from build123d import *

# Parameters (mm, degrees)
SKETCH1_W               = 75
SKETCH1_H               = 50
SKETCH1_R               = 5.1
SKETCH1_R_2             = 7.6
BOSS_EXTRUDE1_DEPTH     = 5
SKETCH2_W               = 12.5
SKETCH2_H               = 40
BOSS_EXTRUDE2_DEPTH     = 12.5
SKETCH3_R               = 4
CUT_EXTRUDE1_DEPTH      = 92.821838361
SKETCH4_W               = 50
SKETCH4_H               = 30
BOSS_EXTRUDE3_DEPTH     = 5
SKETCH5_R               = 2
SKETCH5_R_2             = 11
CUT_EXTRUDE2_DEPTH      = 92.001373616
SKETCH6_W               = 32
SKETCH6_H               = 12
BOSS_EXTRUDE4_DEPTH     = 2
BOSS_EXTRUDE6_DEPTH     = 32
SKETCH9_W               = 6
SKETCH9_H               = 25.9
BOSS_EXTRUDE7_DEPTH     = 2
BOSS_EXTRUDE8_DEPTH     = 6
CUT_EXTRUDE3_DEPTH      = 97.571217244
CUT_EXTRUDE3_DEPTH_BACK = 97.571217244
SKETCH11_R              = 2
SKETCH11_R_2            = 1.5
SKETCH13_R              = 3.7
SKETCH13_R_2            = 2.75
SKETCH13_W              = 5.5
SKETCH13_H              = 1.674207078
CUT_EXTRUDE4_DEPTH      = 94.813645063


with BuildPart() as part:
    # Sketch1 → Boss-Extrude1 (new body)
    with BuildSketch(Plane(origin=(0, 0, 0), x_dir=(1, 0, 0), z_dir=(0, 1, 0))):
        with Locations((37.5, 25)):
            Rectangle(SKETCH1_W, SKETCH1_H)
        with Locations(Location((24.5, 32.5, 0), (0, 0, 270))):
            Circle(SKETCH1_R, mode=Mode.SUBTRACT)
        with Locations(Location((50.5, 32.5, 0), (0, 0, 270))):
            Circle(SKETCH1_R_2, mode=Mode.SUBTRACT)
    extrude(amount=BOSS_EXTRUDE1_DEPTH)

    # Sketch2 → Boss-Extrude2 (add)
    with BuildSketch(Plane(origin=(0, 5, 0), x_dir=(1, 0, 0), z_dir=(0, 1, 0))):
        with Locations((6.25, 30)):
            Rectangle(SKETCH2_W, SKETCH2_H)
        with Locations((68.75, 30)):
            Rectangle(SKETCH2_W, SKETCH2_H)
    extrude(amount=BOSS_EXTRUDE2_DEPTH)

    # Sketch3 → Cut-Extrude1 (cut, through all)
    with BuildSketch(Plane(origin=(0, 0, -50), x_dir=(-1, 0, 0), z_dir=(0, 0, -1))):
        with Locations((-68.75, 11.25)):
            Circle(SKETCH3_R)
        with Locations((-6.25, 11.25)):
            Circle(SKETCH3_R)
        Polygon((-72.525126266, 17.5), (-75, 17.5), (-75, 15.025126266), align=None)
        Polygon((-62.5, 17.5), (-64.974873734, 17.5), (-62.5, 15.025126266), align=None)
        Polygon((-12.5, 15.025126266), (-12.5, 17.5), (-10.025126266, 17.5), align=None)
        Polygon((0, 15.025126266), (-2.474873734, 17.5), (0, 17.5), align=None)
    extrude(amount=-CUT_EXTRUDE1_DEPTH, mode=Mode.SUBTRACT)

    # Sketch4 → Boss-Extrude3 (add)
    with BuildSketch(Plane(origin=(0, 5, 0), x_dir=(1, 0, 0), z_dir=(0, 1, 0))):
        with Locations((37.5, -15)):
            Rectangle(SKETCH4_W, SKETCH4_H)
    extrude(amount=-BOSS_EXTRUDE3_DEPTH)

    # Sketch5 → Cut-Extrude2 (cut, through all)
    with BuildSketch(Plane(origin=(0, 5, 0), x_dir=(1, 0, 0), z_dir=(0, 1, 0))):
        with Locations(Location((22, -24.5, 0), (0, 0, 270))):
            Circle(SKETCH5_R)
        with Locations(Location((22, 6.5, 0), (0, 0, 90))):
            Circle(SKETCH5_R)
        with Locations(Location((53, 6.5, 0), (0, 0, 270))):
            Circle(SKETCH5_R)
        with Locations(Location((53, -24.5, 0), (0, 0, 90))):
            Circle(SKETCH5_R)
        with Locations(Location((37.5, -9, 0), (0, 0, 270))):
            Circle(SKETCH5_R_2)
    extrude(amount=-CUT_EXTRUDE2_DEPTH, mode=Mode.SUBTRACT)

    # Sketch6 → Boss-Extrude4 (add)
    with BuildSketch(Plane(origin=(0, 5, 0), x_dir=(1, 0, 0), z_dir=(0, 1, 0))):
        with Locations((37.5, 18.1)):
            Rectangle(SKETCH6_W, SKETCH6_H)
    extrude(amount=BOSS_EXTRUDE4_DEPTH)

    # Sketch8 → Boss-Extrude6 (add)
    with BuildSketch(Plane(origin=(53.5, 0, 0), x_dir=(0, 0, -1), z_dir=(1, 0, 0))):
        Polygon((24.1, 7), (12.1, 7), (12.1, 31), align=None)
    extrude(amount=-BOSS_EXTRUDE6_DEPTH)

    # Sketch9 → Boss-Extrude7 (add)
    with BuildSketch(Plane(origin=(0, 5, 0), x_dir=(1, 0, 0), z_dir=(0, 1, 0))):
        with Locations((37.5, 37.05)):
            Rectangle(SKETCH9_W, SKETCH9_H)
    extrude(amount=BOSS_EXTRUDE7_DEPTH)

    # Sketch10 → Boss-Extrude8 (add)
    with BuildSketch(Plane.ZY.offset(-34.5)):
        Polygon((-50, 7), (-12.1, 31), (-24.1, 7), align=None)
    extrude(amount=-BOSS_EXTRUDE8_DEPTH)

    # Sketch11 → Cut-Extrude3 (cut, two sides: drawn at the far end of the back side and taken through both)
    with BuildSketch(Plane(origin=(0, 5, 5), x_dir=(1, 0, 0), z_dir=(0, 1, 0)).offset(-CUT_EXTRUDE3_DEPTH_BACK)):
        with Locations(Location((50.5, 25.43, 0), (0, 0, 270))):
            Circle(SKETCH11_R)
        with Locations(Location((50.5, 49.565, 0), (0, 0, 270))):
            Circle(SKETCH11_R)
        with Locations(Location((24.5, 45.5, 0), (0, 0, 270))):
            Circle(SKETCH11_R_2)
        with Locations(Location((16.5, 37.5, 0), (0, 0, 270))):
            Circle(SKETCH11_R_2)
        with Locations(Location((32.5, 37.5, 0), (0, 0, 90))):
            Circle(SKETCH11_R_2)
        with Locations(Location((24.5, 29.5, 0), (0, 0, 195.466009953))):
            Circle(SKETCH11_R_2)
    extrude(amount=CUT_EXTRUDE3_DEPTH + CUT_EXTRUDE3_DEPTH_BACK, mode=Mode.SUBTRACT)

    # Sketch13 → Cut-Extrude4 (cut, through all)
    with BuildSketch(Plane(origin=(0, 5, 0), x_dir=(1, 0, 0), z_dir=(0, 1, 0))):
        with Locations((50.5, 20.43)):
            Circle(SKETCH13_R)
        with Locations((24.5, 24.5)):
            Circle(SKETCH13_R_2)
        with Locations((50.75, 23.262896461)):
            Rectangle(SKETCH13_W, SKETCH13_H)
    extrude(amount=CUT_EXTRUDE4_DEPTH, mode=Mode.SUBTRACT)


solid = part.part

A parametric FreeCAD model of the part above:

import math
import FreeCAD as App
import Part
import Sketcher
from FreeCAD import Vector
Q = App.Units.Quantity

doc = App.newDocument("Part")
body = doc.addObject("PartDesign::Body", "Body")

# Sketch on XZ plane
sketch1 = doc.addObject("Sketcher::SketchObject", "Sketch")
body.addObject(sketch1)
sketch1.AttachmentSupport = (doc.XZ_Plane, [""])
sketch1.MapMode = "FlatFace"
sketch1.addGeometry([
    Part.LineSegment(Vector(0, -50, 0), Vector(0, 0, 0)),  # 0
    Part.LineSegment(Vector(0, 0, 0), Vector(75, 0, 0)),  # 1
    Part.LineSegment(Vector(75, 0, 0), Vector(75, -50, 0)),  # 2
    Part.LineSegment(Vector(75, -50, 0), Vector(0, -50, 0)),  # 3
    Part.Circle(Vector(24.5, -32.5, 0), Vector(0, 0, 1), 5.1),  # 4
    Part.Circle(Vector(50.5, -32.5, 0), Vector(0, 0, 1), 7.6),  # 5
], False)
sketch1.addConstraint([
    Sketcher.Constraint("Coincident", 0, 2, 1, 1),
    Sketcher.Constraint("Coincident", 1, 2, 2, 1),
    Sketcher.Constraint("Coincident", 2, 2, 3, 1),
    Sketcher.Constraint("Coincident", 3, 2, 0, 1),
    Sketcher.Constraint("Vertical", 0),
    Sketcher.Constraint("Horizontal", 1),
    Sketcher.Constraint("Vertical", 2),
    Sketcher.Constraint("Horizontal", 3),
    Sketcher.Constraint("Coincident", 0, 2, -1, 1),
    Sketcher.Constraint("Horizontal", 4, 3, 5, 3),
    Sketcher.Constraint("Diameter", 4, Q("10.2 mm")),
    Sketcher.Constraint("Diameter", 5, Q("15.2 mm")),
    Sketcher.Constraint("DistanceX", 1, 1, 1, 2, Q("75 mm")),
    Sketcher.Constraint("DistanceY", 0, 1, 0, 2, Q("50 mm")),
    Sketcher.Constraint("DistanceX", 4, 3, 5, 3, Q("26 mm")),
    Sketcher.Constraint("DistanceX", -1, 1, 4, 3, Q("24.5 mm")),
    Sketcher.Constraint("DistanceY", 4, 3, -1, 1, Q("32.5 mm")),
])
pad1 = doc.addObject("PartDesign::Pad", "Pad")
body.addObject(pad1)
pad1.Profile = sketch1
pad1.Length = 5
pad1.Reversed = True

# Sketch on XZ plane
sketch2 = doc.addObject("Sketcher::SketchObject", "Sketch001")
body.addObject(sketch2)
sketch2.AttachmentSupport = (doc.XZ_Plane, [""])
sketch2.MapMode = "FlatFace"
sketch2.AttachmentOffset = App.Placement(Vector(0, 0, -5), App.Rotation())
sketch2.addGeometry([
    Part.LineSegment(Vector(0, -50, 0), Vector(0, -10, 0)),  # 0
    Part.LineSegment(Vector(0, -10, 0), Vector(12.5, -10, 0)),  # 1
    Part.LineSegment(Vector(12.5, -10, 0), Vector(12.5, -50, 0)),  # 2
    Part.LineSegment(Vector(12.5, -50, 0), Vector(0, -50, 0)),  # 3
    Part.LineSegment(Vector(62.5, -50, 0), Vector(62.5, -10, 0)),  # 4
    Part.LineSegment(Vector(62.5, -10, 0), Vector(75, -10, 0)),  # 5
    Part.LineSegment(Vector(75, -10, 0), Vector(75, -50, 0)),  # 6
    Part.LineSegment(Vector(75, -50, 0), Vector(62.5, -50, 0)),  # 7
], False)
sketch2.addConstraint([
    Sketcher.Constraint("Coincident", 0, 2, 1, 1),
    Sketcher.Constraint("Coincident", 1, 2, 2, 1),
    Sketcher.Constraint("Coincident", 2, 2, 3, 1),
    Sketcher.Constraint("Coincident", 3, 2, 0, 1),
    Sketcher.Constraint("Coincident", 4, 2, 5, 1),
    Sketcher.Constraint("Coincident", 5, 2, 6, 1),
    Sketcher.Constraint("Coincident", 6, 2, 7, 1),
    Sketcher.Constraint("Coincident", 7, 2, 4, 1),
    Sketcher.Constraint("Vertical", 0),
    Sketcher.Constraint("Horizontal", 1),
    Sketcher.Constraint("Vertical", 2),
    Sketcher.Constraint("Horizontal", 3),
    Sketcher.Constraint("Vertical", 4),
    Sketcher.Constraint("Horizontal", 5),
    Sketcher.Constraint("Vertical", 6),
    Sketcher.Constraint("Horizontal", 7),
    Sketcher.Constraint("PointOnObject", 0, 2, -2),
    Sketcher.Constraint("Horizontal", 1, 2, 4, 2),
    Sketcher.Constraint("Horizontal", 3, 2, 6, 2),
    Sketcher.Constraint("Equal", 3, 5),
    Sketcher.Constraint("DistanceY", 0, 1, 0, 2, Q("40 mm")),
    Sketcher.Constraint("DistanceX", 1, 1, 1, 2, Q("12.5 mm")),
    Sketcher.Constraint("DistanceY", 0, 2, -1, 1, Q("10 mm")),
    Sketcher.Constraint("DistanceX", -1, 1, 5, 2, Q("75 mm")),
])
pad2 = doc.addObject("PartDesign::Pad", "Pad001")
body.addObject(pad2)
pad2.Profile = sketch2
pad2.Length = 12.5
pad2.Reversed = True

# Sketch on XY plane
sketch3 = doc.addObject("Sketcher::SketchObject", "Sketch002")
body.addObject(sketch3)
sketch3.AttachmentSupport = (doc.XY_Plane, [""])
sketch3.MapMode = "FlatFace"
sketch3.AttachmentOffset = App.Placement(Vector(0, 0, -50), App.Rotation())
sketch3.addGeometry([
    Part.Circle(Vector(68.75, 11.25, 0), Vector(0, 0, 1), 4),  # 0
    Part.Circle(Vector(6.25, 11.25, 0), Vector(0, 0, 1), 4),  # 1
    Part.LineSegment(Vector(72.525126, 17.5, 0), Vector(75, 17.5, 0)),  # 2
    Part.LineSegment(Vector(75, 17.5, 0), Vector(75, 15.025126, 0)),  # 3
    Part.LineSegment(Vector(75, 15.025126, 0), Vector(72.525126, 17.5, 0)),  # 4
    Part.LineSegment(Vector(62.5, 17.5, 0), Vector(64.974874, 17.5, 0)),  # 5
    Part.LineSegment(Vector(64.974874, 17.5, 0), Vector(62.5, 15.025126, 0)),  # 6
    Part.LineSegment(Vector(62.5, 15.025126, 0), Vector(62.5, 17.5, 0)),  # 7
    Part.LineSegment(Vector(12.5, 17.5, 0), Vector(12.5, 15.025126, 0)),  # 8
    Part.LineSegment(Vector(12.5, 15.025126, 0), Vector(10.025126, 17.5, 0)),  # 9
    Part.LineSegment(Vector(10.025126, 17.5, 0), Vector(12.5, 17.5, 0)),  # 10
    Part.LineSegment(Vector(2.474874, 17.5, 0), Vector(0, 15.025126, 0)),  # 11
    Part.LineSegment(Vector(0, 15.025126, 0), Vector(0, 17.5, 0)),  # 12
    Part.LineSegment(Vector(0, 17.5, 0), Vector(2.474874, 17.5, 0)),  # 13
], False)
sketch3.addConstraint([
    Sketcher.Constraint("Coincident", 2, 2, 3, 1),
    Sketcher.Constraint("Coincident", 3, 2, 4, 1),
    Sketcher.Constraint("Coincident", 4, 2, 2, 1),
    Sketcher.Constraint("Coincident", 5, 2, 6, 1),
    Sketcher.Constraint("Coincident", 6, 2, 7, 1),
    Sketcher.Constraint("Coincident", 7, 2, 5, 1),
    Sketcher.Constraint("Coincident", 8, 2, 9, 1),
    Sketcher.Constraint("Coincident", 9, 2, 10, 1),
    Sketcher.Constraint("Coincident", 10, 2, 8, 1),
    Sketcher.Constraint("Coincident", 11, 2, 12, 1),
    Sketcher.Constraint("Coincident", 12, 2, 13, 1),
    Sketcher.Constraint("Coincident", 13, 2, 11, 1),
    Sketcher.Constraint("Horizontal", 2),
    Sketcher.Constraint("Vertical", 3),
    Sketcher.Constraint("Horizontal", 5),
    Sketcher.Constraint("Vertical", 7),
    Sketcher.Constraint("Vertical", 8),
    Sketcher.Constraint("Horizontal", 10),
    Sketcher.Constraint("Vertical", 12),
    Sketcher.Constraint("Horizontal", 13),
    Sketcher.Constraint("Equal", 0, 1),
    Sketcher.Constraint("PointOnObject", 11, 2, -2),
    Sketcher.Constraint("Perpendicular", 4, 6),
    Sketcher.Constraint("Perpendicular", 6, 9),
    Sketcher.Constraint("Perpendicular", 9, 11),
    Sketcher.Constraint("Horizontal", 0, 3, 1, 3),
    Sketcher.Constraint("Horizontal", 4, 2, 5, 2),
    Sketcher.Constraint("Horizontal", 3, 2, 6, 2),
    Sketcher.Constraint("Horizontal", 6, 2, 8, 2),
    Sketcher.Constraint("Horizontal", 7, 2, 9, 2),
    Sketcher.Constraint("Horizontal", 8, 2, 11, 2),
    Sketcher.Constraint("Horizontal", 10, 2, 12, 2),
    Sketcher.Constraint("Equal", 2, 5),
    Sketcher.Constraint("Diameter", 0, Q("8 mm")),
    Sketcher.Constraint("DistanceX", -1, 1, 2, 2, Q("75 mm")),
    Sketcher.Constraint("DistanceX", 8, 2, 6, 2, Q("50 mm")),
    Sketcher.Constraint("Distance", 4, Q("3.5 mm")),
    Sketcher.Constraint("DistanceY", -1, 1, 2, 2, Q("17.5 mm")),
    Sketcher.Constraint("DistanceX", -1, 1, 6, 2, Q("62.5 mm")),
    Sketcher.Constraint("DistanceX", 1, 3, 0, 3, Q("62.5 mm")),
    Sketcher.Constraint("DistanceX", -1, 1, 0, 3, Q("68.75 mm")),
    Sketcher.Constraint("DistanceY", -1, 1, 0, 3, Q("11.25 mm")),
])
pocket1 = doc.addObject("PartDesign::Pocket", "Pocket")
body.addObject(pocket1)
pocket1.Profile = sketch3
pocket1.Type = "ThroughAll"
pocket1.Reversed = True

# Sketch on XZ plane
sketch4 = doc.addObject("Sketcher::SketchObject", "Sketch003")
body.addObject(sketch4)
sketch4.AttachmentSupport = (doc.XZ_Plane, [""])
sketch4.MapMode = "FlatFace"
sketch4.AttachmentOffset = App.Placement(Vector(0, 0, -5), App.Rotation())
sketch4.addGeometry([
    Part.LineSegment(Vector(12.5, 0, 0), Vector(12.5, 30, 0)),
    Part.LineSegment(Vector(12.5, 30, 0), Vector(62.5, 30, 0)),
    Part.LineSegment(Vector(62.5, 30, 0), Vector(62.5, 0, 0)),
    Part.LineSegment(Vector(62.5, 0, 0), Vector(12.5, 0, 0)),
], False)
sketch4.addConstraint([
    Sketcher.Constraint("Coincident", 0, 2, 1, 1),
    Sketcher.Constraint("Coincident", 1, 2, 2, 1),
    Sketcher.Constraint("Coincident", 2, 2, 3, 1),
    Sketcher.Constraint("Coincident", 3, 2, 0, 1),
    Sketcher.Constraint("Vertical", 0),
    Sketcher.Constraint("Horizontal", 1),
    Sketcher.Constraint("Vertical", 2),
    Sketcher.Constraint("Horizontal", 3),
    Sketcher.Constraint("PointOnObject", 2, 2, -1),
    Sketcher.Constraint("DistanceX", 1, 1, 1, 2, Q("50 mm")),
    Sketcher.Constraint("DistanceY", 0, 1, 0, 2, Q("30 mm")),
    Sketcher.Constraint("DistanceX", -1, 1, 0, 2, Q("12.5 mm")),
])
pad3 = doc.addObject("PartDesign::Pad", "Pad002")
body.addObject(pad3)
pad3.Profile = sketch4
pad3.Length = 5

# Sketch on XZ plane
sketch5 = doc.addObject("Sketcher::SketchObject", "Sketch004")
body.addObject(sketch5)
sketch5.AttachmentSupport = (doc.XZ_Plane, [""])
sketch5.MapMode = "FlatFace"
sketch5.AttachmentOffset = App.Placement(Vector(0, 0, -5), App.Rotation())
sketch5.addGeometry([
    Part.Circle(Vector(22, 24.5, 0), Vector(0, 0, 1), 2),  # 0
    Part.Circle(Vector(22, -6.5, 0), Vector(0, 0, 1), 2),  # 1
    Part.Circle(Vector(53, -6.5, 0), Vector(0, 0, 1), 2),  # 2
    Part.Circle(Vector(53, 24.5, 0), Vector(0, 0, 1), 2),  # 3
    Part.Circle(Vector(37.5, 9, 0), Vector(0, 0, 1), 11),  # 4
], False)
sketch5.addConstraint([
    Sketcher.Constraint("Equal", 0, 1),
    Sketcher.Constraint("Equal", 1, 2),
    Sketcher.Constraint("Equal", 2, 3),
    Sketcher.Constraint("Horizontal", 1, 3, 2, 3),
    Sketcher.Constraint("Horizontal", 0, 3, 3, 3),
    Sketcher.Constraint("Vertical", 0, 3, 1, 3),
    Sketcher.Constraint("Vertical", 2, 3, 3, 3),
    Sketcher.Constraint("Diameter", 0, Q("4 mm")),
    Sketcher.Constraint("Diameter", 4, Q("22 mm")),
    Sketcher.Constraint("DistanceX", -1, 1, 0, 3, Q("22 mm")),
    Sketcher.Constraint("DistanceX", -1, 1, 2, 3, Q("53 mm")),
    Sketcher.Constraint("DistanceY", -1, 1, 4, 3, Q("9 mm")),
    Sketcher.Constraint("DistanceY", 1, 3, 0, 3, Q("31 mm")),
    Sketcher.Constraint("DistanceY", -1, 1, 0, 3, Q("24.5 mm")),
    Sketcher.Constraint("DistanceX", -1, 1, 4, 3, Q("37.5 mm")),
])
pocket2 = doc.addObject("PartDesign::Pocket", "Pocket001")
body.addObject(pocket2)
pocket2.Profile = sketch5
pocket2.Type = "ThroughAll"
pocket2.Reversed = True

# Sketch on XZ plane
sketch6 = doc.addObject("Sketcher::SketchObject", "Sketch005")
body.addObject(sketch6)
sketch6.AttachmentSupport = (doc.XZ_Plane, [""])
sketch6.MapMode = "FlatFace"
sketch6.AttachmentOffset = App.Placement(Vector(0, 0, -5), App.Rotation())
sketch6.addGeometry([
    Part.LineSegment(Vector(21.5, -24.1, 0), Vector(21.5, -12.1, 0)),
    Part.LineSegment(Vector(21.5, -12.1, 0), Vector(53.5, -12.1, 0)),
    Part.LineSegment(Vector(53.5, -12.1, 0), Vector(53.5, -24.1, 0)),
    Part.LineSegment(Vector(53.5, -24.1, 0), Vector(21.5, -24.1, 0)),
], False)
sketch6.addConstraint([
    Sketcher.Constraint("Coincident", 0, 2, 1, 1),
    Sketcher.Constraint("Coincident", 1, 2, 2, 1),
    Sketcher.Constraint("Coincident", 2, 2, 3, 1),
    Sketcher.Constraint("Coincident", 3, 2, 0, 1),
    Sketcher.Constraint("Vertical", 0),
    Sketcher.Constraint("Horizontal", 1),
    Sketcher.Constraint("Vertical", 2),
    Sketcher.Constraint("Horizontal", 3),
    Sketcher.Constraint("DistanceX", 1, 1, 1, 2, Q("32 mm")),
    Sketcher.Constraint("DistanceY", 0, 1, 0, 2, Q("12 mm")),
    Sketcher.Constraint("DistanceX", -1, 1, 0, 2, Q("21.5 mm")),
    Sketcher.Constraint("DistanceY", 0, 2, -1, 1, Q("12.1 mm")),
])
pad4 = doc.addObject("PartDesign::Pad", "Pad003")
body.addObject(pad4)
pad4.Profile = sketch6
pad4.Length = 2
pad4.Reversed = True

# Sketch on YZ plane
sketch7 = doc.addObject("Sketcher::SketchObject", "Sketch006")
body.addObject(sketch7)
sketch7.AttachmentSupport = (doc.YZ_Plane, [""])
sketch7.MapMode = "FlatFace"
sketch7.AttachmentOffset = App.Placement(Vector(0, 0, 53.5), App.Rotation())
sketch7.addGeometry([
    Part.LineSegment(Vector(7, -12.1, 0), Vector(7, -24.1, 0)),
    Part.LineSegment(Vector(7, -24.1, 0), Vector(31, -12.1, 0)),
    Part.LineSegment(Vector(31, -12.1, 0), Vector(7, -12.1, 0)),
], False)
sketch7.addConstraint([
    Sketcher.Constraint("Coincident", 0, 2, 1, 1),
    Sketcher.Constraint("Coincident", 1, 2, 2, 1),
    Sketcher.Constraint("Coincident", 2, 2, 0, 1),
    Sketcher.Constraint("Vertical", 0),
    Sketcher.Constraint("Horizontal", 2),
    Sketcher.Constraint("DistanceX", 2, 2, 2, 1, Q("24 mm")),
    Sketcher.Constraint("DistanceY", 0, 2, 0, 1, Q("12 mm")),
    Sketcher.Constraint("DistanceX", -1, 1, 0, 2, Q("7 mm")),
    Sketcher.Constraint("DistanceY", 0, 2, -1, 1, Q("24.1 mm")),
])
pad5 = doc.addObject("PartDesign::Pad", "Pad004")
body.addObject(pad5)
pad5.Profile = sketch7
pad5.Length = 32
pad5.Reversed = True

# Sketch on XZ plane
sketch8 = doc.addObject("Sketcher::SketchObject", "Sketch007")
body.addObject(sketch8)
sketch8.AttachmentSupport = (doc.XZ_Plane, [""])
sketch8.MapMode = "FlatFace"
sketch8.AttachmentOffset = App.Placement(Vector(0, 0, -5), App.Rotation())
sketch8.addGeometry([
    Part.LineSegment(Vector(34.5, -50, 0), Vector(34.5, -24.1, 0)),
    Part.LineSegment(Vector(34.5, -24.1, 0), Vector(40.5, -24.1, 0)),
    Part.LineSegment(Vector(40.5, -24.1, 0), Vector(40.5, -50, 0)),
    Part.LineSegment(Vector(40.5, -50, 0), Vector(34.5, -50, 0)),
], False)
sketch8.addConstraint([
    Sketcher.Constraint("Coincident", 0, 2, 1, 1),
    Sketcher.Constraint("Coincident", 1, 2, 2, 1),
    Sketcher.Constraint("Coincident", 2, 2, 3, 1),
    Sketcher.Constraint("Coincident", 3, 2, 0, 1),
    Sketcher.Constraint("Vertical", 0),
    Sketcher.Constraint("Horizontal", 1),
    Sketcher.Constraint("Vertical", 2),
    Sketcher.Constraint("Horizontal", 3),
    Sketcher.Constraint("DistanceX", 1, 1, 1, 2, Q("6 mm")),
    Sketcher.Constraint("DistanceY", 0, 1, 0, 2, Q("25.9 mm")),
    Sketcher.Constraint("DistanceY", 2, 2, -1, 1, Q("50 mm")),
    Sketcher.Constraint("DistanceX", -1, 1, 0, 2, Q("34.5 mm")),
])
pad6 = doc.addObject("PartDesign::Pad", "Pad005")
body.addObject(pad6)
pad6.Profile = sketch8
pad6.Length = 2
pad6.Reversed = True

# Sketch on YZ plane
sketch9 = doc.addObject("Sketcher::SketchObject", "Sketch008")
body.addObject(sketch9)
sketch9.AttachmentSupport = (doc.YZ_Plane, [""])
sketch9.MapMode = "FlatFace"
sketch9.AttachmentOffset = App.Placement(Vector(0, 0, 34.5), App.Rotation())
sketch9.addGeometry([
    Part.LineSegment(Vector(31, -12.1, 0), Vector(7, -50, 0)),
    Part.LineSegment(Vector(7, -50, 0), Vector(7, -24.1, 0)),
    Part.LineSegment(Vector(7, -24.1, 0), Vector(31, -12.1, 0)),
], False)
sketch9.addConstraint([
    Sketcher.Constraint("Coincident", 0, 2, 1, 1),
    Sketcher.Constraint("Coincident", 1, 2, 2, 1),
    Sketcher.Constraint("Coincident", 2, 2, 0, 1),
    Sketcher.Constraint("Vertical", 1),
    Sketcher.Constraint("DistanceY", 1, 1, 1, 2, Q("25.9 mm")),
    Sketcher.Constraint("DistanceX", -1, 1, 0, 2, Q("7 mm")),
    Sketcher.Constraint("DistanceY", 0, 2, -1, 1, Q("50 mm")),
    Sketcher.Constraint("DistanceX", -1, 1, 2, 2, Q("31 mm")),
    Sketcher.Constraint("DistanceY", 1, 2, 2, 2, Q("12 mm")),
])
pad7 = doc.addObject("PartDesign::Pad", "Pad006")
body.addObject(pad7)
pad7.Profile = sketch9
pad7.Length = 6

# Sketch on XZ plane
sketch10 = doc.addObject("Sketcher::SketchObject", "Sketch009")
body.addObject(sketch10)
sketch10.AttachmentSupport = (doc.XZ_Plane, [""])
sketch10.MapMode = "FlatFace"
sketch10.AttachmentOffset = App.Placement(Vector(0, 0, -5), App.Rotation())
sketch10.addGeometry([
    Part.Circle(Vector(50.5, -20.43, 0), Vector(0, 0, 1), 2),  # 0
    Part.Circle(Vector(50.5, -44.565, 0), Vector(0, 0, 1), 2),  # 1
    Part.Circle(Vector(24.5, -40.5, 0), Vector(0, 0, 1), 1.5),  # 2
    Part.Circle(Vector(16.5, -32.5, 0), Vector(0, 0, 1), 1.5),  # 3
    Part.Circle(Vector(32.5, -32.5, 0), Vector(0, 0, 1), 1.5),  # 4
    Part.Circle(Vector(24.5, -24.5, 0), Vector(0, 0, 1), 1.5),  # 5
], False)
sketch10.addConstraint([
    Sketcher.Constraint("Equal", 0, 1),
    Sketcher.Constraint("Equal", 2, 3),
    Sketcher.Constraint("Equal", 3, 4),
    Sketcher.Constraint("Equal", 4, 5),
    Sketcher.Constraint("Horizontal", 3, 3, 4, 3),
    Sketcher.Constraint("Vertical", 0, 3, 1, 3),
    Sketcher.Constraint("Vertical", 2, 3, 5, 3),
    Sketcher.Constraint("Diameter", 0, Q("4 mm")),
    Sketcher.Constraint("Diameter", 2, Q("3 mm")),
    Sketcher.Constraint("DistanceX", 2, 3, 1, 3, Q("26 mm")),
    Sketcher.Constraint("DistanceX", 3, 3, 2, 3, Q("8 mm")),
    Sketcher.Constraint("DistanceY", 2, 3, 3, 3, Q("8 mm")),
    Sketcher.Constraint("DistanceX", 2, 3, 4, 3, Q("8 mm")),
    Sketcher.Constraint("DistanceY", 3, 3, 5, 3, Q("8 mm")),
    Sketcher.Constraint("DistanceX", -1, 1, 0, 3, Q("50.5 mm")),
    Sketcher.Constraint("DistanceY", 2, 3, -1, 1, Q("40.5 mm")),
    Sketcher.Constraint("DistanceY", 0, 3, -1, 1, Q("20.43 mm")),
    Sketcher.Constraint("DistanceY", 1, 3, -1, 1, Q("44.565 mm")),
])
pocket3 = doc.addObject("PartDesign::Pocket", "Pocket002")
body.addObject(pocket3)
pocket3.Profile = sketch10
pocket3.Type = "ThroughAll"
pocket3.Midplane = True

# Sketch on XZ plane
sketch11 = doc.addObject("Sketcher::SketchObject", "Sketch010")
body.addObject(sketch11)
sketch11.AttachmentSupport = (doc.XZ_Plane, [""])
sketch11.MapMode = "FlatFace"
sketch11.AttachmentOffset = App.Placement(Vector(0, 0, -5), App.Rotation())
sketch11.addGeometry([
    Part.ArcOfCircle(Part.Circle(Vector(50.5, -20.43, 0), Vector(0, 0, 1), 3.7), math.radians(-35.824774), math.radians(227.493358)),  # 0
    Part.LineSegment(Vector(53.5, -22.595641, 0), Vector(53.5, -24.1, 0)),  # 1
    Part.LineSegment(Vector(53.5, -24.1, 0), Vector(50.970213, -24.1, 0)),  # 2
    Part.ArcOfCircle(Part.Circle(Vector(50.5, -20.43, 0), Vector(0, 0, 1), 3.7), math.radians(-97.30115), math.radians(-82.69885)),  # 3
    Part.LineSegment(Vector(50.029787, -24.1, 0), Vector(48, -24.1, 0)),  # 4
    Part.LineSegment(Vector(48, -24.1, 0), Vector(48, -23.157636, 0)),  # 5
    Part.Circle(Vector(24.5, -24.5, 0), Vector(0, 0, 1), 2.75),  # 6
], False)
sketch11.addConstraint([
    Sketcher.Constraint("Coincident", 0, 1, 1, 1),
    Sketcher.Constraint("Coincident", 1, 2, 2, 1),
    Sketcher.Constraint("Coincident", 2, 2, 3, 2),
    Sketcher.Constraint("Coincident", 3, 1, 4, 1),
    Sketcher.Constraint("Coincident", 4, 2, 5, 1),
    Sketcher.Constraint("Coincident", 5, 2, 0, 2),
    Sketcher.Constraint("Vertical", 1),
    Sketcher.Constraint("Horizontal", 2),
    Sketcher.Constraint("Horizontal", 4),
    Sketcher.Constraint("Vertical", 5),
    Sketcher.Constraint("Coincident", 3, 3, 0, 3),
    Sketcher.Constraint("Equal", 0, 3),
    Sketcher.Constraint("Horizontal", 2, 2, 3, 1),
    Sketcher.Constraint("Diameter", 6, Q("5.5 mm")),
    Sketcher.Constraint("Radius", 0, Q("3.7 mm")),
    Sketcher.Constraint("DistanceX", -1, 1, 4, 2, Q("48 mm")),
    Sketcher.Constraint("DistanceX", 6, 3, 0, 3, Q("26 mm")),
    Sketcher.Constraint("DistanceX", 0, 3, 0, 1, Q("3 mm")),
    Sketcher.Constraint("DistanceX", -1, 1, 0, 3, Q("50.5 mm")),
    Sketcher.Constraint("DistanceY", 6, 3, -1, 1, Q("24.5 mm")),
    Sketcher.Constraint("DistanceY", 1, 2, -1, 1, Q("24.1 mm")),
    Sketcher.Constraint("DistanceY", 0, 3, -1, 1, Q("20.43 mm")),
])
pocket4 = doc.addObject("PartDesign::Pocket", "Pocket003")
body.addObject(pocket4)
pocket4.Profile = sketch11
pocket4.Type = "ThroughAll"

doc.recompute()
